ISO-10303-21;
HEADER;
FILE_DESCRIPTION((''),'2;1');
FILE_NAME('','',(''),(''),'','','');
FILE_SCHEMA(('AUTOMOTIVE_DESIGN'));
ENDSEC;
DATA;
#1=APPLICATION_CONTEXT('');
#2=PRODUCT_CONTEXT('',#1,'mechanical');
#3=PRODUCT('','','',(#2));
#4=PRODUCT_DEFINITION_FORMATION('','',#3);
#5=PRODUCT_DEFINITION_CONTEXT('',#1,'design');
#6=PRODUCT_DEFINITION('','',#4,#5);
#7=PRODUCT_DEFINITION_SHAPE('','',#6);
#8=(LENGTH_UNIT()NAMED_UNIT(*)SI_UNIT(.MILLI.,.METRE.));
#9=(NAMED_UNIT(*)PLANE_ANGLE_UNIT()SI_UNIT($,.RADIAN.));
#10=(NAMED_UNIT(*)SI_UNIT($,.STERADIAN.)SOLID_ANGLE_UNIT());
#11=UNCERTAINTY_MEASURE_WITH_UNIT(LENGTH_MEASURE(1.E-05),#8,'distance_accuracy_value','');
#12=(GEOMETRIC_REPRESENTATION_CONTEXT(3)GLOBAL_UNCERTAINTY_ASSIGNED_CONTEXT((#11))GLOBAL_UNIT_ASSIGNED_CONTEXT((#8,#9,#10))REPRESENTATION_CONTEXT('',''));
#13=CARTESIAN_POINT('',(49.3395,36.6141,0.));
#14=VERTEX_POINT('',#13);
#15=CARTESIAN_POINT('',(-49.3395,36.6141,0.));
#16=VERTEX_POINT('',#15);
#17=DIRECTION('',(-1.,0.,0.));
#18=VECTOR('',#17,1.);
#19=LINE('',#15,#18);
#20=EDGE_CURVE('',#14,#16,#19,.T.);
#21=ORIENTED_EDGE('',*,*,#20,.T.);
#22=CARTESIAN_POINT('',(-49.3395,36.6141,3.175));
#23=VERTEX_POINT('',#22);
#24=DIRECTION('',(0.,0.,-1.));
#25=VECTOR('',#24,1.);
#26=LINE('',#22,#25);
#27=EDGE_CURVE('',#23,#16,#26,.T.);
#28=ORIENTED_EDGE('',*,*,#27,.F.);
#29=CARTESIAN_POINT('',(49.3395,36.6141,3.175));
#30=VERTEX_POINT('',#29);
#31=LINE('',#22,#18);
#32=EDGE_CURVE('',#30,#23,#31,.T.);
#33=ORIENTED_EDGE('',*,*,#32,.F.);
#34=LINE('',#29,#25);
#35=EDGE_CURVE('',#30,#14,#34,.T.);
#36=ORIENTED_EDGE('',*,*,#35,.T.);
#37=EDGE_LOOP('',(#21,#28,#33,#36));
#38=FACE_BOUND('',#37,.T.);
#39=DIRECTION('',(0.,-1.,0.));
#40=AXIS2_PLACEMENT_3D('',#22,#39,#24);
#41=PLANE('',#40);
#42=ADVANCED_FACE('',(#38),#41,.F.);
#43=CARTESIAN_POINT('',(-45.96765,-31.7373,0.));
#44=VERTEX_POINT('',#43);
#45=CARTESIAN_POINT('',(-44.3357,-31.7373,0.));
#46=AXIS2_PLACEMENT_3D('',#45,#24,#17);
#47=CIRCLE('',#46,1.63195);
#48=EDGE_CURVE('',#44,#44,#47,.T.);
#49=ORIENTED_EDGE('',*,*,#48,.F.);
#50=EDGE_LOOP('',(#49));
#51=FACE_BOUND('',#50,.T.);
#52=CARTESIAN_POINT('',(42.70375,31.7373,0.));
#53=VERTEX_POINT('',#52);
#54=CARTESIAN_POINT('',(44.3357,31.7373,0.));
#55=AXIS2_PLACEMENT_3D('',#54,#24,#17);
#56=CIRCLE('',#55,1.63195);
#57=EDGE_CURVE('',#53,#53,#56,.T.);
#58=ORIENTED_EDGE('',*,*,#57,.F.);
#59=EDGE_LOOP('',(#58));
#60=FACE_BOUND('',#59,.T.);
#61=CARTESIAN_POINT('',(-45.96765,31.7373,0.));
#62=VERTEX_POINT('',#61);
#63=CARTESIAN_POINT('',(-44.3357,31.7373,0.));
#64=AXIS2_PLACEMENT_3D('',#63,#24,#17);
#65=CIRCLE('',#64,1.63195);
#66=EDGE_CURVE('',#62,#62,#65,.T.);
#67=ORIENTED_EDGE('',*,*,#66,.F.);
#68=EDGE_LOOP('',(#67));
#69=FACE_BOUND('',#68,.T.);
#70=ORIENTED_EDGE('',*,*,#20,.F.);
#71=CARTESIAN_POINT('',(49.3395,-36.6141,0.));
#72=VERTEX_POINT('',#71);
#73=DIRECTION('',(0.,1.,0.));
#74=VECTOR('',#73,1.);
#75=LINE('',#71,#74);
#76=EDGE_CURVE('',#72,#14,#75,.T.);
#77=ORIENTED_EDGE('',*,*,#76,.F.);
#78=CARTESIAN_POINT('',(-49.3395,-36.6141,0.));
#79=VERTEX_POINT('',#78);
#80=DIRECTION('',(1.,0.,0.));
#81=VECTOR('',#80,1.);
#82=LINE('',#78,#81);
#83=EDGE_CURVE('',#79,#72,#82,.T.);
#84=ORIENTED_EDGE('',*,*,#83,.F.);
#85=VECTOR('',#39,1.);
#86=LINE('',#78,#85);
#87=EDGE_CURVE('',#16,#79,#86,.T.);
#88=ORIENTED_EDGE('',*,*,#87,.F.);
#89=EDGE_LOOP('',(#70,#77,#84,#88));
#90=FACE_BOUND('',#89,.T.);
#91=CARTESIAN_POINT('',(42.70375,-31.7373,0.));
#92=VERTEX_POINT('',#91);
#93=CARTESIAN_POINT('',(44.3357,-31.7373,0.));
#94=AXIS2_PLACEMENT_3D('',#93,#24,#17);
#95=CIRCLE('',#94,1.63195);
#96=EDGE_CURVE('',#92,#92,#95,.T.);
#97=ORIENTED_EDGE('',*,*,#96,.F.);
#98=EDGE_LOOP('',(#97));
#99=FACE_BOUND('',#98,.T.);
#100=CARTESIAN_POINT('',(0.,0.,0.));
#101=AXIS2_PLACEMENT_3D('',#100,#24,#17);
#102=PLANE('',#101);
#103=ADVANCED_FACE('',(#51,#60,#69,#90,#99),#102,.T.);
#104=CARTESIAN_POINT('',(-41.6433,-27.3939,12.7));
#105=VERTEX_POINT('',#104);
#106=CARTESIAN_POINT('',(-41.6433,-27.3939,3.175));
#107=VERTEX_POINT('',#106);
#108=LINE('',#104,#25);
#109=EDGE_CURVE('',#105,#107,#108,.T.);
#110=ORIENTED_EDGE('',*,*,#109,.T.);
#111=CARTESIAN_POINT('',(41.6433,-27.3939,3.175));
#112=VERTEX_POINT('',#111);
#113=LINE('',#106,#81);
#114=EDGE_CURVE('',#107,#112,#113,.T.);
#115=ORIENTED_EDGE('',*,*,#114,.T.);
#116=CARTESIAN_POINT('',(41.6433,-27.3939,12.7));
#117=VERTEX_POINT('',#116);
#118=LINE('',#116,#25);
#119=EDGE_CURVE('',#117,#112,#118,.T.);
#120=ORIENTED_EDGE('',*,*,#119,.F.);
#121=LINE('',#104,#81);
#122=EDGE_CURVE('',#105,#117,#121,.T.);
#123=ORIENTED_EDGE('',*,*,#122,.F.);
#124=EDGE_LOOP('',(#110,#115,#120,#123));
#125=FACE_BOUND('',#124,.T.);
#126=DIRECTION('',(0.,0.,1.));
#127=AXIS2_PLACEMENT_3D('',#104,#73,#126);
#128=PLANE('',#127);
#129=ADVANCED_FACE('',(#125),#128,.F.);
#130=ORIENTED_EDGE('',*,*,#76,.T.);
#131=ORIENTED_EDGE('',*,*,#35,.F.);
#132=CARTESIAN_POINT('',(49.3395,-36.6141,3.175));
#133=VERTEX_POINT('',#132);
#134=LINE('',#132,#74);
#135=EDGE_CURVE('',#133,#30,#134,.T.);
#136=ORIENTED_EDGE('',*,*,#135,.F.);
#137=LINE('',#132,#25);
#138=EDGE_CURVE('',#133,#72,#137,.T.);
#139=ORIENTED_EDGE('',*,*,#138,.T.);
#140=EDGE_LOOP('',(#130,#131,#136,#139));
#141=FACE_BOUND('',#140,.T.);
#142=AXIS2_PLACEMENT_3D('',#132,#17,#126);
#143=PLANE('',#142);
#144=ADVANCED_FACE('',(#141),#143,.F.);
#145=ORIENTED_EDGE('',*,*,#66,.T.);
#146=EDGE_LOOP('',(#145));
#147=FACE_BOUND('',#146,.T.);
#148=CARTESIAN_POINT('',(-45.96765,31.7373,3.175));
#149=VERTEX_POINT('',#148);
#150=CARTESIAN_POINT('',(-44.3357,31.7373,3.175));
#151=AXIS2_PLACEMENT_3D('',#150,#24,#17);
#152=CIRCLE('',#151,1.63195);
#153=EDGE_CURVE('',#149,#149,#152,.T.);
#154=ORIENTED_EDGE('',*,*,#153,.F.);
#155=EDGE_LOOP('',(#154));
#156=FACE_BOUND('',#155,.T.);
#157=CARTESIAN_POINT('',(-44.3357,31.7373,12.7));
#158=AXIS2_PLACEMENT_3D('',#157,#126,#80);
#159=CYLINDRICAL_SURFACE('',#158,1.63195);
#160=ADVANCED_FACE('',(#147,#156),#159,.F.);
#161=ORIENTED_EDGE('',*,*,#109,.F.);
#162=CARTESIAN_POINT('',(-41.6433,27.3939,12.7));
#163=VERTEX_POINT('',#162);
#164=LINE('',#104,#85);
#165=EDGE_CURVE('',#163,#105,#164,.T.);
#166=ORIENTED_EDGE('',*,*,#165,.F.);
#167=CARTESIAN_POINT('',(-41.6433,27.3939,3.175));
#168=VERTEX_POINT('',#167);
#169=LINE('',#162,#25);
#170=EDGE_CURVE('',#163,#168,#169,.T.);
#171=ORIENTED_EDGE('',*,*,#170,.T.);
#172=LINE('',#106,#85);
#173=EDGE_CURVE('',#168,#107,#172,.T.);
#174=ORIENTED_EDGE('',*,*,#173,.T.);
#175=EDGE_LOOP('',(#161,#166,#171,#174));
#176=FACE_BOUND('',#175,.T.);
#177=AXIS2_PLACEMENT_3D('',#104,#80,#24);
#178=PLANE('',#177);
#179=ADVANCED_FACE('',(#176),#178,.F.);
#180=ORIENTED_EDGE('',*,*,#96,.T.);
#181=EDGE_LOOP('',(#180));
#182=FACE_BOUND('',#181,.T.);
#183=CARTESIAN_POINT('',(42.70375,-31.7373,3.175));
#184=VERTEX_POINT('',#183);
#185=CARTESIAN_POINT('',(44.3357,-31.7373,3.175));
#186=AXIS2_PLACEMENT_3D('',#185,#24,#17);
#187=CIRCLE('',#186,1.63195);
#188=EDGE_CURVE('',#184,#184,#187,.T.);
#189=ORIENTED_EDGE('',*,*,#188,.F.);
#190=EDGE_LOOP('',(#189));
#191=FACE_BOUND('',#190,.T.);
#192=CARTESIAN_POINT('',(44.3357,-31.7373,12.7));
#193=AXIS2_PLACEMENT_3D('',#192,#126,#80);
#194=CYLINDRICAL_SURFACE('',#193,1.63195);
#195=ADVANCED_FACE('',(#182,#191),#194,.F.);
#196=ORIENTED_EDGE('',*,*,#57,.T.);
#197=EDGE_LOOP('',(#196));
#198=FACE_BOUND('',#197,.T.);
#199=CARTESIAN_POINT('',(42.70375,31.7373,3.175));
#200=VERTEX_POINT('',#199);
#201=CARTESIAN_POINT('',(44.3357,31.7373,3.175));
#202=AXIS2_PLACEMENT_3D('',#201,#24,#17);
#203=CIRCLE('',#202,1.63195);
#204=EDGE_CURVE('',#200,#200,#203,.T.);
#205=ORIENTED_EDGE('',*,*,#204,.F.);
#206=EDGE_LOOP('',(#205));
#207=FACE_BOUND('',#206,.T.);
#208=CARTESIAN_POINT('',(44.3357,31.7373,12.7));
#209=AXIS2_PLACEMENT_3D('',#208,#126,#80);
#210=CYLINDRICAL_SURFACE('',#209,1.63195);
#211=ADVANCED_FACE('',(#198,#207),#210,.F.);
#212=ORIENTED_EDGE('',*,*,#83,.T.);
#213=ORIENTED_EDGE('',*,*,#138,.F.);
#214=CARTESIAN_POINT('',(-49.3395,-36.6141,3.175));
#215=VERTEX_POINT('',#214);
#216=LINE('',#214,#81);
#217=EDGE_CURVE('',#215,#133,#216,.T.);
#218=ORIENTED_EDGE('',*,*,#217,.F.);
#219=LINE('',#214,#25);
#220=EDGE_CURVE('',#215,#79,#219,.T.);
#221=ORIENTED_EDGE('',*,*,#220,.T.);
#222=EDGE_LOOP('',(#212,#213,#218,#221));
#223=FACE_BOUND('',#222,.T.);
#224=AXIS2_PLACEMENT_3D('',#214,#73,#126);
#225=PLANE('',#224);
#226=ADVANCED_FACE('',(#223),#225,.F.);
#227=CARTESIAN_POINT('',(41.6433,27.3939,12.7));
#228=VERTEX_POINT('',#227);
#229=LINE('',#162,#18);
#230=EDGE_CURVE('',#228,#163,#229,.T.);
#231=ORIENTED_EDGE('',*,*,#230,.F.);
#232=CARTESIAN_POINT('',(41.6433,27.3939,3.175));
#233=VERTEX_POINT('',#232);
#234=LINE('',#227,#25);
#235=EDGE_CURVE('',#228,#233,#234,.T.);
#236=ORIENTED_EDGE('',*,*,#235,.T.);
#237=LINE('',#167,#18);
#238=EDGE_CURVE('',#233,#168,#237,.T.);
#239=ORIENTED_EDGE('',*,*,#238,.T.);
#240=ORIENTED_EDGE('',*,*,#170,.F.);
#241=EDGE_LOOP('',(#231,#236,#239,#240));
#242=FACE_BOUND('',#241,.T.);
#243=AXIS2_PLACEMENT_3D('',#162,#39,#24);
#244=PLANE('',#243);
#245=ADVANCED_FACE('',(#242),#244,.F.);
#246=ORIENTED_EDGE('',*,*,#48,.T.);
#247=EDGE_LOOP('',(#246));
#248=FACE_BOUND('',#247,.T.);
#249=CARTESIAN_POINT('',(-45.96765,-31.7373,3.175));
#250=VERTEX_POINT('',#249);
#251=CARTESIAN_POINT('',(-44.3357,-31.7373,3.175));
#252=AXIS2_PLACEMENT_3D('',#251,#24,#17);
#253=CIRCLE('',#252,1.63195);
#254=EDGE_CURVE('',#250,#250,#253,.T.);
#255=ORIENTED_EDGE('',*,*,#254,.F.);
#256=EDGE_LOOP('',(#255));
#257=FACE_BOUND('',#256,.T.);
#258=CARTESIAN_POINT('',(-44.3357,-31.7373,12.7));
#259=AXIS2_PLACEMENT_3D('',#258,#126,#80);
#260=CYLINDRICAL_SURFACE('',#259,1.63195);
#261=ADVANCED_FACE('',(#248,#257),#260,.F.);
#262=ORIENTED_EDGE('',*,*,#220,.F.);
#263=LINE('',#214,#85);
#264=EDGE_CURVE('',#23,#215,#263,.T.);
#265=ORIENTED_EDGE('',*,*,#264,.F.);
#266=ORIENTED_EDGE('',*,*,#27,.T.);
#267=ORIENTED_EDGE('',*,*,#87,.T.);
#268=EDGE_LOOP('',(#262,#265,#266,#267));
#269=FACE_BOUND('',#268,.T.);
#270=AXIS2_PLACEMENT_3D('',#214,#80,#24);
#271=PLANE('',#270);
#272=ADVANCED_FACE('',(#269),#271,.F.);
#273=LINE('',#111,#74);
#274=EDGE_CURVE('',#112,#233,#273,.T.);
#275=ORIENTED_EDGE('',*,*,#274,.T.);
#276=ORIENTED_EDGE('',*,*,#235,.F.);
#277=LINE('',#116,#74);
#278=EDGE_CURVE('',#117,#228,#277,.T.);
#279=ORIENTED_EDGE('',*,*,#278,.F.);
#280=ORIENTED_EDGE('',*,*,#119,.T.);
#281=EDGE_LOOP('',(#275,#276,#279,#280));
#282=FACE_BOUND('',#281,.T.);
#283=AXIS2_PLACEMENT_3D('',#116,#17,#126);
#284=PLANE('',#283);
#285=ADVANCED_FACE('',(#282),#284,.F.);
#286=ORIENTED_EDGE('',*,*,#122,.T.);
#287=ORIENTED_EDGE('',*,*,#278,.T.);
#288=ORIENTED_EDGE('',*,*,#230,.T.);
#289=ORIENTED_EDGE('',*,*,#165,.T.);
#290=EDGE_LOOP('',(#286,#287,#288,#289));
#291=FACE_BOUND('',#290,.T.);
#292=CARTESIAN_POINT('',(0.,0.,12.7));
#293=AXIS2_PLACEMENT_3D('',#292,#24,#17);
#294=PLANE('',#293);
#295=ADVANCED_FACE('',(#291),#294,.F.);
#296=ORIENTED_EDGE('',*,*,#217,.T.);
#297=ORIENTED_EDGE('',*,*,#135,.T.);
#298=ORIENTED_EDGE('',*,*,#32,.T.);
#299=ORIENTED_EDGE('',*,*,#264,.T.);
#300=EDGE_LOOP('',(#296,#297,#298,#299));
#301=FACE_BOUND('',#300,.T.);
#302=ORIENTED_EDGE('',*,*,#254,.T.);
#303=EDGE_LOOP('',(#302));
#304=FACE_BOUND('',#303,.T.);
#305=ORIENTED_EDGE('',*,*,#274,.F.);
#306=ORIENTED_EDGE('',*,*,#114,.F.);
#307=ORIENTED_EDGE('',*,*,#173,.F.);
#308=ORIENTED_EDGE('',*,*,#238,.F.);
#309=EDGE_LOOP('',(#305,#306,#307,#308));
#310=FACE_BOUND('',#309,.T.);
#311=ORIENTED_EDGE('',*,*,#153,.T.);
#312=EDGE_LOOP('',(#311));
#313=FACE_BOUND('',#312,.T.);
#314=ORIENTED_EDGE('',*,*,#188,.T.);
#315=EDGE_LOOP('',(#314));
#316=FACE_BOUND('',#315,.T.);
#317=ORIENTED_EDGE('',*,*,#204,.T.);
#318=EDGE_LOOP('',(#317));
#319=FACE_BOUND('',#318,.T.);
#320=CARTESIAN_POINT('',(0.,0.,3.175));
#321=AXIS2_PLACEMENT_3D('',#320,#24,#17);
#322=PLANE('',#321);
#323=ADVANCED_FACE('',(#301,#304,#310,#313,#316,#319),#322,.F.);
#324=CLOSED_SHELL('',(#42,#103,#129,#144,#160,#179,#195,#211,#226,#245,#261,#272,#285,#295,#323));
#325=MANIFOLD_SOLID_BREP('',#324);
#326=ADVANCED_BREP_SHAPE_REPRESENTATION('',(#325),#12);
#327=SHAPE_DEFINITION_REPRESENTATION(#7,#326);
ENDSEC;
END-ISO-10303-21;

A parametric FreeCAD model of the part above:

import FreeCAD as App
import Part
import Sketcher
from FreeCAD import Vector
Q = App.Units.Quantity

doc = App.newDocument("Part")
body = doc.addObject("PartDesign::Body", "Body")

# Sketch on XY plane
sketch1 = doc.addObject("Sketcher::SketchObject", "Sketch")
body.addObject(sketch1)
sketch1.AttachmentSupport = (doc.XY_Plane, [""])
sketch1.MapMode = "FlatFace"
sketch1.addGeometry(Part.LineSegment(Vector(-49, 37, 0), Vector(-49, -37, 0)), False)
sketch1.addGeometry(Part.LineSegment(Vector(-49, -37, 0), Vector(49, -37, 0)), False)
sketch1.addGeometry(Part.LineSegment(Vector(49, -37, 0), Vector(49, 37, 0)), False)
sketch1.addGeometry(Part.LineSegment(Vector(49, 37, 0), Vector(-49, 37, 0)), False)
sketch1.addConstraint(Sketcher.Constraint("Coincident", 0, 2, 1, 1))
sketch1.addConstraint(Sketcher.Constraint("Coincident", 1, 2, 2, 1))
sketch1.addConstraint(Sketcher.Constraint("Coincident", 2, 2, 3, 1))
sketch1.addConstraint(Sketcher.Constraint("Coincident", 3, 2, 0, 1))
sketch1.addConstraint(Sketcher.Constraint("Vertical", 0))
sketch1.addConstraint(Sketcher.Constraint("Horizontal", 1))
sketch1.addConstraint(Sketcher.Constraint("Vertical", 2))
sketch1.addConstraint(Sketcher.Constraint("Horizontal", 3))
sketch1.addConstraint(Sketcher.Constraint("Symmetric", 0, 2, 2, 2, -1, 1))
sketch1.addConstraint(Sketcher.Constraint("DistanceX", 1, 1, 1, 2, Q("3.885 in")))
sketch1.addConstraint(Sketcher.Constraint("DistanceY", 0, 2, 0, 1, Q("2.883 in")))
pad1 = doc.addObject("PartDesign::Pad", "Pad")
body.addObject(pad1)
pad1.Profile = sketch1
pad1.Length = Q("0.125 in")

# Sketch on XY plane
sketch2 = doc.addObject("Sketcher::SketchObject", "Sketch001")
body.addObject(sketch2)
sketch2.AttachmentSupport = (doc.XY_Plane, [""])
sketch2.MapMode = "FlatFace"
sketch2.AttachmentOffset = App.Placement(Vector(0, 0, 0.125 * 25.4), App.Rotation())
sketch2.addGeometry(Part.LineSegment(Vector(-42, 27, 0), Vector(-42, -27, 0)), False)
sketch2.addGeometry(Part.LineSegment(Vector(-42, -27, 0), Vector(42, -27, 0)), False)
sketch2.addGeometry(Part.LineSegment(Vector(42, -27, 0), Vector(42, 27, 0)), False)
sketch2.addGeometry(Part.LineSegment(Vector(42, 27, 0), Vector(-42, 27, 0)), False)
sketch2.addConstraint(Sketcher.Constraint("Coincident", 0, 2, 1, 1))
sketch2.addConstraint(Sketcher.Constraint("Coincident", 1, 2, 2, 1))
sketch2.addConstraint(Sketcher.Constraint("Coincident", 2, 2, 3, 1))
sketch2.addConstraint(Sketcher.Constraint("Coincident", 3, 2, 0, 1))
sketch2.addConstraint(Sketcher.Constraint("Vertical", 0))
sketch2.addConstraint(Sketcher.Constraint("Horizontal", 1))
sketch2.addConstraint(Sketcher.Constraint("Vertical", 2))
sketch2.addConstraint(Sketcher.Constraint("Horizontal", 3))
sketch2.addConstraint(Sketcher.Constraint("Symmetric", 0, 2, 2, 2, -1, 1))
sketch2.addConstraint(Sketcher.Constraint("DistanceX", 1, 1, 1, 2, Q("3.279 in")))
sketch2.addConstraint(Sketcher.Constraint("DistanceY", 0, 2, 0, 1, Q("2.157 in")))
pad2 = doc.addObject("PartDesign::Pad", "Pad001")
body.addObject(pad2)
pad2.Profile = sketch2
pad2.Length = Q("0.375 in")

# Sketch on XY plane
sketch3 = doc.addObject("Sketcher::SketchObject", "Sketch002")
body.addObject(sketch3)
sketch3.AttachmentSupport = (doc.XY_Plane, [""])
sketch3.MapMode = "FlatFace"
sketch3.AttachmentOffset = App.Placement(Vector(0, 0, 0.5 * 25.4), App.Rotation())
sketch3.addGeometry(Part.Circle(Vector(-44.3, 31.7, 0), Vector(0, 0, 1), 1.6), False)
sketch3.addGeometry(Part.Circle(Vector(44.3, 31.7, 0), Vector(0, 0, 1), 1.6), False)
sketch3.addGeometry(Part.Circle(Vector(44.3, -31.7, 0), Vector(0, 0, 1), 1.6), False)
sketch3.addGeometry(Part.Circle(Vector(-44.3, -31.7, 0), Vector(0, 0, 1), 1.6), False)
sketch3.addConstraint(Sketcher.Constraint("Equal", 0, 1))
sketch3.addConstraint(Sketcher.Constraint("Equal", 1, 2))
sketch3.addConstraint(Sketcher.Constraint("Equal", 2, 3))
sketch3.addConstraint(Sketcher.Constraint("Symmetric", 0, 3, 2, 3, -1, 1))
sketch3.addConstraint(Sketcher.Constraint("Symmetric", 1, 3, 3, 3, -1, 1))
sketch3.addConstraint(Sketcher.Constraint("Symmetric", 0, 3, 1, 3, -2))
sketch3.addConstraint(Sketcher.Constraint("Diameter", 0, Q("0.1285 in")))
sketch3.addConstraint(Sketcher.Constraint("DistanceX", 0, 3, 1, 3, Q("3.491 in")))
sketch3.addConstraint(Sketcher.Constraint("DistanceY", 2, 3, 1, 3, Q("2.499 in")))
doc.recompute()
hole = doc.addObject("PartDesign::Hole", "Hole")
body.addObject(hole)
hole.Profile = sketch3
hole.ThreadType = "None"
hole.Diameter = Q("0.1285 in")
hole.DepthType = "ThroughAll"

doc.recompute()
